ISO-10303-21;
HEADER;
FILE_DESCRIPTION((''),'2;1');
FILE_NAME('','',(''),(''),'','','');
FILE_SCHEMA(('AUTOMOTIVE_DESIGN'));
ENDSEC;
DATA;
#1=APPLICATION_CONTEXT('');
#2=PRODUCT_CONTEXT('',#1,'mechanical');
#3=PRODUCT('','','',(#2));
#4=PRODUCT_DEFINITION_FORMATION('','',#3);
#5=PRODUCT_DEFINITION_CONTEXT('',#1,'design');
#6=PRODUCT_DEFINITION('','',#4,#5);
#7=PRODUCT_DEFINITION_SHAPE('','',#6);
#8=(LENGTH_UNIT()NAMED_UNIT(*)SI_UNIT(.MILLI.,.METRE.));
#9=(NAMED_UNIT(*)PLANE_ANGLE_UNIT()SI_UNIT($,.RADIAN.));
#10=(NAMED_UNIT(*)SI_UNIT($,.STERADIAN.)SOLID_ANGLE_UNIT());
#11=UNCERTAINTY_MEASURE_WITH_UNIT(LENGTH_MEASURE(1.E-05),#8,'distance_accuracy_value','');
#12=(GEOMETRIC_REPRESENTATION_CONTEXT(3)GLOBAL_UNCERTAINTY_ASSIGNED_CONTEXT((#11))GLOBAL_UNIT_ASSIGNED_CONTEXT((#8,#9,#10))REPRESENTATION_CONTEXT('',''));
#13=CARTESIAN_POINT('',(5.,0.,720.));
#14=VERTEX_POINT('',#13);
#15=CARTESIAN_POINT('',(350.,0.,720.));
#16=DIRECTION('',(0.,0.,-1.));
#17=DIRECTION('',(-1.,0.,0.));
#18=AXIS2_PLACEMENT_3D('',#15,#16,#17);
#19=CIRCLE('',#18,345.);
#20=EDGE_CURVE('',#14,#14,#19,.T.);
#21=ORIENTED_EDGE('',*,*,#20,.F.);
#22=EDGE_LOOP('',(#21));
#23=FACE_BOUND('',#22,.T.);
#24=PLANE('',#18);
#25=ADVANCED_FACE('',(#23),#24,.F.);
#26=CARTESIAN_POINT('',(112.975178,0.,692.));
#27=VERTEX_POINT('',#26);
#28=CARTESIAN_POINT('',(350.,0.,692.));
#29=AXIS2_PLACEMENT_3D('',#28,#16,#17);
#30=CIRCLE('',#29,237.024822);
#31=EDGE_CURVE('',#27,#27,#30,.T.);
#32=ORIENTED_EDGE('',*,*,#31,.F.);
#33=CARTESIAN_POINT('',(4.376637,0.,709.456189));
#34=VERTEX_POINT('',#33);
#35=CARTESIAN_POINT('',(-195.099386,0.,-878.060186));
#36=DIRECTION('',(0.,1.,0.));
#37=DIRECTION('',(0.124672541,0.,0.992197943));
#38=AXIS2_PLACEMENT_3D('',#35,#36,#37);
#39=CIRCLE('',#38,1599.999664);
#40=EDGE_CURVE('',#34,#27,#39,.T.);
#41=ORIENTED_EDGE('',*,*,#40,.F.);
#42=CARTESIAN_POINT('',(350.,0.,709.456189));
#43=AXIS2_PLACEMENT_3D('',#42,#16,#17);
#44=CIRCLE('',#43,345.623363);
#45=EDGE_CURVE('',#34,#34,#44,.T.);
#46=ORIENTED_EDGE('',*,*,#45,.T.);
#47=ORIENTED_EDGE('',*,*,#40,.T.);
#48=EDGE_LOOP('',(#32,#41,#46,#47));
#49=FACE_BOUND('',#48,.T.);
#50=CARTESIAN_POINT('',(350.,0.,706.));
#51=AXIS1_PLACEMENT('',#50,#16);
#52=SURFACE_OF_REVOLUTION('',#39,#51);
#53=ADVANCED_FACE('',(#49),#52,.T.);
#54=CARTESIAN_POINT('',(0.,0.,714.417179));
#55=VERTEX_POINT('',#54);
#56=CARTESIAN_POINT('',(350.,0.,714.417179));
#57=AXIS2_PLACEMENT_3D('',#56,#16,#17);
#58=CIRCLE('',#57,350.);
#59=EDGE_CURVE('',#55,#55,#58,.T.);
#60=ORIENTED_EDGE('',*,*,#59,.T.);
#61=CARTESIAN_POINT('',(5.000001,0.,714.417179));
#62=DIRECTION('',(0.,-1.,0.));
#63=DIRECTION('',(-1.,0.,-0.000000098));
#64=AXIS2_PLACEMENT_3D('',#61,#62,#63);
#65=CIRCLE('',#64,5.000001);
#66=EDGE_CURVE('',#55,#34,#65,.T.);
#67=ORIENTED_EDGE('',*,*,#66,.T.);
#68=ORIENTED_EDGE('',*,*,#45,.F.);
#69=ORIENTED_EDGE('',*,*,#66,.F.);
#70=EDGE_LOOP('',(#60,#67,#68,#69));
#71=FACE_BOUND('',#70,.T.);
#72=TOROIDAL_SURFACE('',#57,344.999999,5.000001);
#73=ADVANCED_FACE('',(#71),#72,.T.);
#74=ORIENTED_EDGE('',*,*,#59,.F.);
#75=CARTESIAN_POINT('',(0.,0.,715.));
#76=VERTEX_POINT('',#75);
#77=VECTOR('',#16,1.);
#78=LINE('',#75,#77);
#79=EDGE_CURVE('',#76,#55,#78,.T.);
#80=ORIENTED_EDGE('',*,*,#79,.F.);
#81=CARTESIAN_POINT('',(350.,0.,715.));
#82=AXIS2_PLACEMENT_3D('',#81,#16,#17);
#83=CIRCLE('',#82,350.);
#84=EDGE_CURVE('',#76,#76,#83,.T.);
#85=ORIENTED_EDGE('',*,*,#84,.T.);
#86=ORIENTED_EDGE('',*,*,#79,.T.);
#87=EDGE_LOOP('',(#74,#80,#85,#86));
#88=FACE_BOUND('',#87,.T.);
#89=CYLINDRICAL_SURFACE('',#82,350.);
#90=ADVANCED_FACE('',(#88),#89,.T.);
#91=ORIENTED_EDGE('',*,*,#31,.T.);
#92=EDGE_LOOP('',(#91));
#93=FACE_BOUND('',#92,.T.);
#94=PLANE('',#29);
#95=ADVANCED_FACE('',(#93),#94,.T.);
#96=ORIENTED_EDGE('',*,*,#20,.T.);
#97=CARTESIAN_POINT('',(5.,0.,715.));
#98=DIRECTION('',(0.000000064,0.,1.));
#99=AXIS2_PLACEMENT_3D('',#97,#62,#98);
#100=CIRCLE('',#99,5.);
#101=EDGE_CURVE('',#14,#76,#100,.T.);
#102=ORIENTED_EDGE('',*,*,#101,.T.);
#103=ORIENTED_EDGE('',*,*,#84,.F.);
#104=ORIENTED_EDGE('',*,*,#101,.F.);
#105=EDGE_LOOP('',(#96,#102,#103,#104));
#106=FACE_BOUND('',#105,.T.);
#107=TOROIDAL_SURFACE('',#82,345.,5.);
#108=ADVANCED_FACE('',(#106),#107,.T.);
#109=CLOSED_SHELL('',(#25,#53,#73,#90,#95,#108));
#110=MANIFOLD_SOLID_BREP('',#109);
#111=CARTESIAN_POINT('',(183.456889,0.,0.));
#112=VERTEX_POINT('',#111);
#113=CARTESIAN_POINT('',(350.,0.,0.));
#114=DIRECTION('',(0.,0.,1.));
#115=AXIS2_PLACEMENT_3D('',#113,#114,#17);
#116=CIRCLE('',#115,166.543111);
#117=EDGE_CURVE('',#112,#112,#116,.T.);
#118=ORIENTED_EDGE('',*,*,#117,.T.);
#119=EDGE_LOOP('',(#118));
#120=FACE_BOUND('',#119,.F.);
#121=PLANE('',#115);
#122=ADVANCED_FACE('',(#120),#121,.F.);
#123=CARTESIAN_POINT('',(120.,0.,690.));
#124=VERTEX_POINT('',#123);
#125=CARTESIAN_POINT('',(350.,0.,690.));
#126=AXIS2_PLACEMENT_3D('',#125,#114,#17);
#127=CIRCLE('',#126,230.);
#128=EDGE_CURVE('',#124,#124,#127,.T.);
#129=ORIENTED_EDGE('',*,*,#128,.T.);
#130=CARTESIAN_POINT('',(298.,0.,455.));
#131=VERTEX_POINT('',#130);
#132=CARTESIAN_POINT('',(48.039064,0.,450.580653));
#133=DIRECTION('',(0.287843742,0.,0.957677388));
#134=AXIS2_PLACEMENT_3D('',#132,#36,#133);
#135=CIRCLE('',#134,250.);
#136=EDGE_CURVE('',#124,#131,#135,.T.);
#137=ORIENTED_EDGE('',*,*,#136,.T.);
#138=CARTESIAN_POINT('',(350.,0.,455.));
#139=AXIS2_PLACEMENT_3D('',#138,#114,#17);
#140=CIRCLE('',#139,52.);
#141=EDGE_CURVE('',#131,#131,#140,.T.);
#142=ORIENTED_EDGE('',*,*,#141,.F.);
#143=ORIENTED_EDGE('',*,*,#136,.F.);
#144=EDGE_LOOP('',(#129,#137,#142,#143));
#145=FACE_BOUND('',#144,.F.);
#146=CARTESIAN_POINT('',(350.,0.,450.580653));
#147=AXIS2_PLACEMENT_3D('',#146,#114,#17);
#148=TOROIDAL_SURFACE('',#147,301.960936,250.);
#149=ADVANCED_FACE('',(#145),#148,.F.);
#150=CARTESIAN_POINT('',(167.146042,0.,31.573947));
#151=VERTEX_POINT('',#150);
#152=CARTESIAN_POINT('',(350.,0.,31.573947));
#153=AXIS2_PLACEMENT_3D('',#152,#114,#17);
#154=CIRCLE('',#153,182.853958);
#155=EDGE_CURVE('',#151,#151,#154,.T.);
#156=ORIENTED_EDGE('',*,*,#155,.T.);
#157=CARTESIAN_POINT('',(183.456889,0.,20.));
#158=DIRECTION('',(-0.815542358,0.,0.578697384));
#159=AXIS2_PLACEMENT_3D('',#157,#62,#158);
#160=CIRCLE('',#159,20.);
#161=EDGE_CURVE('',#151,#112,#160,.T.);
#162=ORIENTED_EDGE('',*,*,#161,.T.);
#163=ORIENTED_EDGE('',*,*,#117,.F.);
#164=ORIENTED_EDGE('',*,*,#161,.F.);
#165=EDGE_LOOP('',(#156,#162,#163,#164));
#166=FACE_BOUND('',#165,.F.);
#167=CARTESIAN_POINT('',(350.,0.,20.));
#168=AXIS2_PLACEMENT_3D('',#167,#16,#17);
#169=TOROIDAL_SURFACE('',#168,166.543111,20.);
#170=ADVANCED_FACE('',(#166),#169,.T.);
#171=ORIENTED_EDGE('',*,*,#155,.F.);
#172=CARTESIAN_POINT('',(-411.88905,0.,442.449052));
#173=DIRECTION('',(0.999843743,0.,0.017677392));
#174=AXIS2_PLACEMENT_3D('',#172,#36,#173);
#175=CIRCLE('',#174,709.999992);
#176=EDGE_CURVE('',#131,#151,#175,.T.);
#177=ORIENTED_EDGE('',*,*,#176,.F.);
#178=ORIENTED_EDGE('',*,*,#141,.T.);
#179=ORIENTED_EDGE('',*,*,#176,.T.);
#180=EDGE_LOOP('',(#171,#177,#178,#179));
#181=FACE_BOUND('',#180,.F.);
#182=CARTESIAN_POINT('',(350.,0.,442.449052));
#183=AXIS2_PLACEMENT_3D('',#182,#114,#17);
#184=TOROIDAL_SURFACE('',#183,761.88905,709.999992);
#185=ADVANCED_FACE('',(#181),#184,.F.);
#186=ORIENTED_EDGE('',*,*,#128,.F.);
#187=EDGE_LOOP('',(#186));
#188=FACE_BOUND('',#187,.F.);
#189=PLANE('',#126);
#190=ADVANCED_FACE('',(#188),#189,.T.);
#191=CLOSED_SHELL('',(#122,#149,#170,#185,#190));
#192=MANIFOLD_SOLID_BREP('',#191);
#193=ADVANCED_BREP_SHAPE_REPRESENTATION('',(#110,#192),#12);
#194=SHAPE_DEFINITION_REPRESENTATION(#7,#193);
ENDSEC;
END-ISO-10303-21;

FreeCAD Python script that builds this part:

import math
import FreeCAD as App
import Part
import Sketcher
from FreeCAD import Vector
Q = App.Units.Quantity

doc = App.newDocument("Part")
body = doc.addObject("PartDesign::Body", "Body")

# Sketch on XZ plane
sketch1 = body.newObject("Sketcher::SketchObject", "Sketch")
sketch1.AttachmentSupport = (doc.getObject("XZ_Plane"), [""])
sketch1.MapMode = "FlatFace"
sketch1.addGeometry([
    Part.LineSegment(Vector(350, 0, 0), Vector(350, 690, 0)),  # 0
    Part.LineSegment(Vector(350, 690, 0), Vector(120, 690, 0)),  # 1
    Part.ArcOfCircle(Part.Circle(Vector(48, 451, 0), Vector(0, 0, 1), 250), math.radians(1), math.radians(73)),  # 2
    Part.ArcOfCircle(Part.Circle(Vector(-412, 442, 0), Vector(0, 0, 1), 710), math.radians(-35), math.radians(1)),  # 3
    Part.ArcOfCircle(Part.Circle(Vector(183, 20, 0), Vector(0, 0, 1), 20), math.radians(145), math.radians(270)),  # 4
    Part.LineSegment(Vector(183, 0, 0), Vector(350, 0, 0)),  # 5
], False)
sketch1.addGeometry(Part.LineSegment(Vector(350, 0, 0), Vector(350, 690, 0)), True)  # axis
sketch1.addConstraint([
    Sketcher.Constraint("Coincident", 0, 2, 1, 1),
    Sketcher.Constraint("Coincident", 1, 2, 2, 2),
    Sketcher.Constraint("Tangent", 2, 1, 3, 2),
    Sketcher.Constraint("Tangent", 3, 1, 4, 1),
    Sketcher.Constraint("Tangent", 4, 2, 5, 1),
    Sketcher.Constraint("Coincident", 5, 2, 0, 1),
    Sketcher.Constraint("Vertical", 0),
    Sketcher.Constraint("Horizontal", 1),
    Sketcher.Constraint("Horizontal", 5),
    Sketcher.Constraint("Vertical", 6),
    Sketcher.Constraint("Coincident", 6, 1, 5, 2),
    Sketcher.Constraint("PointOnObject", 4, 2, -1),
    Sketcher.Constraint("Horizontal", 1, 2, 6, 2),
    Sketcher.Constraint("Radius", 2, Q("250 mm")),
    Sketcher.Constraint("Radius", 4, Q("20 mm")),
    Sketcher.Constraint("DistanceX", 1, 2, 1, 1, Q("230 mm")),
    Sketcher.Constraint("DistanceY", 0, 1, 0, 2, Q("690 mm")),
    Sketcher.Constraint("DistanceX", -1, 1, 0, 2, Q("350 mm")),
    Sketcher.Constraint("DistanceX", -1, 1, 2, 1, Q("298 mm")),
    Sketcher.Constraint("Radius", 3, Q("709.999992 mm")),
    Sketcher.Constraint("DistanceX", 5, 1, 5, 2, Q("166.543111 mm")),
])
revolution = body.newObject("PartDesign::Revolution", "Revolution")
revolution.Profile = sketch1
revolution.ReferenceAxis = (sketch1, ["Axis0"])
revolution.Angle = 360
body2 = doc.addObject("PartDesign::Body", "Body001")

# Sketch on XZ plane
sketch2 = body2.newObject("Sketcher::SketchObject", "Sketch001")
sketch2.AttachmentSupport = (doc.getObject("XZ_Plane001"), [""])
sketch2.MapMode = "FlatFace"
sketch2.addGeometry([
    Part.LineSegment(Vector(350, 692, 0), Vector(350, 720, 0)),  # 0
    Part.LineSegment(Vector(350, 720, 0), Vector(5, 720, 0)),  # 1
    Part.ArcOfCircle(Part.Circle(Vector(5, 715, 0), Vector(0, 0, 1), 5), math.radians(90), math.radians(180)),  # 2
    Part.LineSegment(Vector(0, 715, 0), Vector(0, 714.4, 0)),  # 3
    Part.ArcOfCircle(Part.Circle(Vector(5, 714.4, 0), Vector(0, 0, 1), 5), math.radians(-180), math.radians(-97)),  # 4
    Part.ArcOfCircle(Part.Circle(Vector(-195.1, -878.1, 0), Vector(0, 0, 1), 1600), math.radians(78.9), math.radians(82.84)),  # 5
    Part.LineSegment(Vector(113, 692, 0), Vector(350, 692, 0)),  # 6
], False)
sketch2.addGeometry(Part.LineSegment(Vector(350, 720, 0), Vector(350, -878.1, 0)), True)  # axis
sketch2.addConstraint([
    Sketcher.Constraint("Coincident", 0, 2, 1, 1),
    Sketcher.Constraint("Tangent", 1, 2, 2, 1),
    Sketcher.Constraint("Tangent", 2, 2, 3, 1),
    Sketcher.Constraint("Tangent", 3, 2, 4, 1),
    Sketcher.Constraint("Tangent", 4, 2, 5, 2),
    Sketcher.Constraint("Coincident", 5, 1, 6, 1),
    Sketcher.Constraint("Coincident", 6, 2, 0, 1),
    Sketcher.Constraint("Vertical", 0),
    Sketcher.Constraint("Horizontal", 1),
    Sketcher.Constraint("Vertical", 3),
    Sketcher.Constraint("Horizontal", 6),
    Sketcher.Constraint("Vertical", 7),
    Sketcher.Constraint("Coincident", 7, 1, 0, 2),
    Sketcher.Constraint("Equal", 2, 4),
    Sketcher.Constraint("PointOnObject", 2, 2, -2),
    Sketcher.Constraint("Horizontal", 5, 3, 7, 2),
    Sketcher.Constraint("Radius", 2, Q("5 mm")),
    Sketcher.Constraint("DistanceX", 1, 2, 1, 1, Q("345 mm")),
    Sketcher.Constraint("DistanceY", 0, 1, 0, 2, Q("28 mm")),
    Sketcher.Constraint("DistanceY", -1, 1, 2, 3, Q("715 mm")),
    Sketcher.Constraint("Radius", 5, Q("1599.999664 mm")),
    Sketcher.Constraint("DistanceX", 6, 1, 6, 2, Q("237.024822 mm")),
    Sketcher.Constraint("DistanceY", 3, 2, 3, 1, Q("0.582821 mm")),
])
revolution2 = body2.newObject("PartDesign::Revolution", "Revolution001")
revolution2.Profile = sketch2
revolution2.ReferenceAxis = (sketch2, ["Axis0"])
revolution2.Angle = 360

doc.recompute()
